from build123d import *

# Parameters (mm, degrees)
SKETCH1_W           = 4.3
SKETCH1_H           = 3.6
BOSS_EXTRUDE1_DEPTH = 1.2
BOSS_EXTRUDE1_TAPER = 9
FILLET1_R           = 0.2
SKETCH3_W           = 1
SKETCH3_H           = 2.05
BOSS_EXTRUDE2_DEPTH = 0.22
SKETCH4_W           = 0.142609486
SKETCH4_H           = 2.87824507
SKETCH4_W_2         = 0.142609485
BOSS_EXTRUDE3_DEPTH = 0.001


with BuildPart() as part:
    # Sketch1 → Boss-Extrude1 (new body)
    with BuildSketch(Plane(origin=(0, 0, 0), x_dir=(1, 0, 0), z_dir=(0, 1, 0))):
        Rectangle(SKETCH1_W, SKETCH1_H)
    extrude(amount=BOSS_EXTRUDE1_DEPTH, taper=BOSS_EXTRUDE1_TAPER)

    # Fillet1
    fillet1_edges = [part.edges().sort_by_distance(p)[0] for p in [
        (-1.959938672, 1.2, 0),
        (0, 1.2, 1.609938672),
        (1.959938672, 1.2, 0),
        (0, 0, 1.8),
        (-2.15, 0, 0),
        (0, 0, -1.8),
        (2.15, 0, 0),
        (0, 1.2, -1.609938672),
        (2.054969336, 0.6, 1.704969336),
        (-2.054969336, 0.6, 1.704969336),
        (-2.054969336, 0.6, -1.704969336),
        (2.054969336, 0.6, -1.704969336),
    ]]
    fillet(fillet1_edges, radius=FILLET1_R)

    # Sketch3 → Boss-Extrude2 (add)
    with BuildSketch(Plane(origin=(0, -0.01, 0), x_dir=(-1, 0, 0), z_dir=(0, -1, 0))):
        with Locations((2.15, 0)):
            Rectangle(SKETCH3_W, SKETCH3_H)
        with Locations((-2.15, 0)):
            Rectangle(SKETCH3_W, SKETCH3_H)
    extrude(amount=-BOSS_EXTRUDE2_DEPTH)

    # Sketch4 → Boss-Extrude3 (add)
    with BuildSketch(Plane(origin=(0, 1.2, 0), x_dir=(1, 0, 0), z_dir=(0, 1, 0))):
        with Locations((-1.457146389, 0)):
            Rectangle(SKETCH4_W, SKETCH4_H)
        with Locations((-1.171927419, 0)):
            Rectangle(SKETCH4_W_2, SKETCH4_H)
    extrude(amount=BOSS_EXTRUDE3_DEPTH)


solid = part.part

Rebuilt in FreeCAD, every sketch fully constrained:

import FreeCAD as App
import Part
import Sketcher


def add_polygon(sketch, points):
    """Adds a closed chain of lines whose ends are joined by coincident constraints."""
    first, n = sketch.GeometryCount, len(points)
    for a, b in zip(points, points[1:] + points[:1]):
        sketch.addGeometry(Part.LineSegment(App.Vector(*a, 0), App.Vector(*b, 0)), False)
    for i in range(n):
        sketch.addConstraint(Sketcher.Constraint("Coincident", first + i, 2, first + (i + 1) % n, 1))

doc = App.newDocument("Part")
params = doc.addObject("Spreadsheet::Sheet", "Params")
for row, (alias, value) in enumerate([
    ("sketch1_width", "4.3 mm"),
    ("sketch1_height", "3.6 mm"),
    ("pad1_length", "1.2 mm"),
    ("pad1_taper", "-9 deg"),
    ("fillet_radius", "0.2 mm"),
    ("sketch2_width", "1 mm"),
    ("sketch2_height", "2.05 mm"),
    ("pad2_length", "0.22 mm"),
    ("pad3_length", "0.001 mm"),
], start=1):
    params.set(f"A{row}", alias)
    params.set(f"B{row}", "=" + value)
    params.setAlias(f"B{row}", alias)

body = doc.addObject("PartDesign::Body", "Body")

# Sketch on XZ plane
sketch1 = body.newObject("Sketcher::SketchObject", "Sketch")
sketch1.AttachmentSupport = (doc.getObject("XZ_Plane"), [""])
sketch1.MapMode = "FlatFace"
add_polygon(sketch1, [(-2.15, -1.8), (-2.15, 1.8), (2.15, 1.8), (2.15, -1.8)])  # lines 0-3
sketch1.addConstraint(Sketcher.Constraint("Vertical", 0))
sketch1.addConstraint(Sketcher.Constraint("Horizontal", 1))
sketch1.addConstraint(Sketcher.Constraint("Vertical", 2))
sketch1.addConstraint(Sketcher.Constraint("Horizontal", 3))
sketch1.addConstraint(Sketcher.Constraint("Symmetric", 0, 2, 2, 2, -1, 1))
sketch1.addConstraint(Sketcher.Constraint("DistanceX", 1, 1, 1, 2, 4.3))
sketch1.addConstraint(Sketcher.Constraint("DistanceY", 0, 1, 0, 2, 3.6))
sketch1.setExpression("Constraints[9]", "Params.sketch1_width")
sketch1.setExpression("Constraints[10]", "Params.sketch1_height")
pad1 = body.newObject("PartDesign::Pad", "Pad")
pad1.Profile = sketch1
pad1.setExpression("Length", "Params.pad1_length")
pad1.Reversed = True
pad1.setExpression("TaperAngle", "Params.pad1_taper")
doc.recompute()

fillet = body.newObject("PartDesign::Fillet", "Fillet")
fillet.Base = (pad1, ["Edge1"])
fillet.UseAllEdges = True
fillet.setExpression("Radius", "Params.fillet_radius")

# Sketch on XZ plane
sketch2 = body.newObject("Sketcher::SketchObject", "Sketch001")
sketch2.AttachmentSupport = (doc.getObject("XZ_Plane"), [""])
sketch2.MapMode = "FlatFace"
sketch2.AttachmentOffset = App.Placement(App.Vector(0, 0, 0.01), App.Rotation())
add_polygon(sketch2, [(-1.65, -1.025), (-1.65, 1.025), (-2.65, 1.025), (-2.65, -1.025)])  # lines 0-3
add_polygon(sketch2, [(2.65, -1.025), (2.65, 1.025), (1.65, 1.025), (1.65, -1.025)])  # lines 4-7
sketch2.addConstraint(Sketcher.Constraint("Vertical", 0))
sketch2.addConstraint(Sketcher.Constraint("Horizontal", 1))
sketch2.addConstraint(Sketcher.Constraint("Vertical", 2))
sketch2.addConstraint(Sketcher.Constraint("Horizontal", 3))
sketch2.addConstraint(Sketcher.Constraint("Vertical", 4))
sketch2.addConstraint(Sketcher.Constraint("Horizontal", 5))
sketch2.addConstraint(Sketcher.Constraint("Vertical", 6))
sketch2.addConstraint(Sketcher.Constraint("Horizontal", 7))
sketch2.addConstraint(Sketcher.Constraint("Symmetric", 2, 2, 4, 2, -1, 1))
sketch2.addConstraint(Sketcher.Constraint("Symmetric", 0, 2, 6, 2, -1, 1))
sketch2.addConstraint(Sketcher.Constraint("Horizontal", 1, 2, 4, 2))
sketch2.addConstraint(Sketcher.Constraint("DistanceX", 1, 2, 1, 1, 1.0))
sketch2.addConstraint(Sketcher.Constraint("DistanceY", 0, 1, 0, 2, 2.05))
sketch2.addConstraint(Sketcher.Constraint("DistanceX", 0, 2, 4, 2, 4.3))
sketch2.setExpression("Constraints[19]", "Params.sketch2_width")
sketch2.setExpression("Constraints[20]", "Params.sketch2_height")
pad2 = body.newObject("PartDesign::Pad", "Pad001")
pad2.Profile = sketch2
pad2.setExpression("Length", "Params.pad2_length")
pad2.Reversed = True

# Sketch on XZ plane
sketch3 = body.newObject("Sketcher::SketchObject", "Sketch002")
sketch3.AttachmentSupport = (doc.getObject("XZ_Plane"), [""])
sketch3.MapMode = "FlatFace"
sketch3.AttachmentOffset = App.Placement(App.Vector(0, 0, -1.2), App.Rotation())
add_polygon(sketch3, [(-1.528451, -1.439123), (-1.528451, 1.439123), (-1.385842, 1.439123), (-1.385842, -1.439123)])  # lines 0-3
add_polygon(sketch3, [(-1.243232, -1.439123), (-1.243232, 1.439123), (-1.100623, 1.439123), (-1.100623, -1.439123)])  # lines 4-7
sketch3.addConstraint(Sketcher.Constraint("Vertical", 0))
sketch3.addConstraint(Sketcher.Constraint("Horizontal", 1))
sketch3.addConstraint(Sketcher.Constraint("Vertical", 2))
sketch3.addConstraint(Sketcher.Constraint("Horizontal", 3))
sketch3.addConstraint(Sketcher.Constraint("Vertical", 4))
sketch3.addConstraint(Sketcher.Constraint("Horizontal", 5))
sketch3.addConstraint(Sketcher.Constraint("Vertical", 6))
sketch3.addConstraint(Sketcher.Constraint("Horizontal", 7))
sketch3.addConstraint(Sketcher.Constraint("Horizontal", 1, 2, 4, 2))
sketch3.addConstraint(Sketcher.Constraint("Horizontal", 3, 2, 6, 2))
sketch3.addConstraint(Sketcher.Constraint("Equal", 3, 5))
sketch3.addConstraint(Sketcher.Constraint("DistanceX", 1, 1, 1, 2, 0.142609))
sketch3.addConstraint(Sketcher.Constraint("DistanceY", 0, 1, 0, 2, 2.878245))
sketch3.addConstraint(Sketcher.Constraint("DistanceX", 0, 2, -1, 1, 1.528451))
sketch3.addConstraint(Sketcher.Constraint("DistanceX", 1, 2, 4, 2, 0.142609))
sketch3.addConstraint(Sketcher.Constraint("DistanceY", -1, 1, 0, 2, 1.439123))
pad3 = body.newObject("PartDesign::Pad", "Pad002")
pad3.Profile = sketch3
pad3.setExpression("Length", "Params.pad3_length")
pad3.Reversed = True

doc.recompute()
